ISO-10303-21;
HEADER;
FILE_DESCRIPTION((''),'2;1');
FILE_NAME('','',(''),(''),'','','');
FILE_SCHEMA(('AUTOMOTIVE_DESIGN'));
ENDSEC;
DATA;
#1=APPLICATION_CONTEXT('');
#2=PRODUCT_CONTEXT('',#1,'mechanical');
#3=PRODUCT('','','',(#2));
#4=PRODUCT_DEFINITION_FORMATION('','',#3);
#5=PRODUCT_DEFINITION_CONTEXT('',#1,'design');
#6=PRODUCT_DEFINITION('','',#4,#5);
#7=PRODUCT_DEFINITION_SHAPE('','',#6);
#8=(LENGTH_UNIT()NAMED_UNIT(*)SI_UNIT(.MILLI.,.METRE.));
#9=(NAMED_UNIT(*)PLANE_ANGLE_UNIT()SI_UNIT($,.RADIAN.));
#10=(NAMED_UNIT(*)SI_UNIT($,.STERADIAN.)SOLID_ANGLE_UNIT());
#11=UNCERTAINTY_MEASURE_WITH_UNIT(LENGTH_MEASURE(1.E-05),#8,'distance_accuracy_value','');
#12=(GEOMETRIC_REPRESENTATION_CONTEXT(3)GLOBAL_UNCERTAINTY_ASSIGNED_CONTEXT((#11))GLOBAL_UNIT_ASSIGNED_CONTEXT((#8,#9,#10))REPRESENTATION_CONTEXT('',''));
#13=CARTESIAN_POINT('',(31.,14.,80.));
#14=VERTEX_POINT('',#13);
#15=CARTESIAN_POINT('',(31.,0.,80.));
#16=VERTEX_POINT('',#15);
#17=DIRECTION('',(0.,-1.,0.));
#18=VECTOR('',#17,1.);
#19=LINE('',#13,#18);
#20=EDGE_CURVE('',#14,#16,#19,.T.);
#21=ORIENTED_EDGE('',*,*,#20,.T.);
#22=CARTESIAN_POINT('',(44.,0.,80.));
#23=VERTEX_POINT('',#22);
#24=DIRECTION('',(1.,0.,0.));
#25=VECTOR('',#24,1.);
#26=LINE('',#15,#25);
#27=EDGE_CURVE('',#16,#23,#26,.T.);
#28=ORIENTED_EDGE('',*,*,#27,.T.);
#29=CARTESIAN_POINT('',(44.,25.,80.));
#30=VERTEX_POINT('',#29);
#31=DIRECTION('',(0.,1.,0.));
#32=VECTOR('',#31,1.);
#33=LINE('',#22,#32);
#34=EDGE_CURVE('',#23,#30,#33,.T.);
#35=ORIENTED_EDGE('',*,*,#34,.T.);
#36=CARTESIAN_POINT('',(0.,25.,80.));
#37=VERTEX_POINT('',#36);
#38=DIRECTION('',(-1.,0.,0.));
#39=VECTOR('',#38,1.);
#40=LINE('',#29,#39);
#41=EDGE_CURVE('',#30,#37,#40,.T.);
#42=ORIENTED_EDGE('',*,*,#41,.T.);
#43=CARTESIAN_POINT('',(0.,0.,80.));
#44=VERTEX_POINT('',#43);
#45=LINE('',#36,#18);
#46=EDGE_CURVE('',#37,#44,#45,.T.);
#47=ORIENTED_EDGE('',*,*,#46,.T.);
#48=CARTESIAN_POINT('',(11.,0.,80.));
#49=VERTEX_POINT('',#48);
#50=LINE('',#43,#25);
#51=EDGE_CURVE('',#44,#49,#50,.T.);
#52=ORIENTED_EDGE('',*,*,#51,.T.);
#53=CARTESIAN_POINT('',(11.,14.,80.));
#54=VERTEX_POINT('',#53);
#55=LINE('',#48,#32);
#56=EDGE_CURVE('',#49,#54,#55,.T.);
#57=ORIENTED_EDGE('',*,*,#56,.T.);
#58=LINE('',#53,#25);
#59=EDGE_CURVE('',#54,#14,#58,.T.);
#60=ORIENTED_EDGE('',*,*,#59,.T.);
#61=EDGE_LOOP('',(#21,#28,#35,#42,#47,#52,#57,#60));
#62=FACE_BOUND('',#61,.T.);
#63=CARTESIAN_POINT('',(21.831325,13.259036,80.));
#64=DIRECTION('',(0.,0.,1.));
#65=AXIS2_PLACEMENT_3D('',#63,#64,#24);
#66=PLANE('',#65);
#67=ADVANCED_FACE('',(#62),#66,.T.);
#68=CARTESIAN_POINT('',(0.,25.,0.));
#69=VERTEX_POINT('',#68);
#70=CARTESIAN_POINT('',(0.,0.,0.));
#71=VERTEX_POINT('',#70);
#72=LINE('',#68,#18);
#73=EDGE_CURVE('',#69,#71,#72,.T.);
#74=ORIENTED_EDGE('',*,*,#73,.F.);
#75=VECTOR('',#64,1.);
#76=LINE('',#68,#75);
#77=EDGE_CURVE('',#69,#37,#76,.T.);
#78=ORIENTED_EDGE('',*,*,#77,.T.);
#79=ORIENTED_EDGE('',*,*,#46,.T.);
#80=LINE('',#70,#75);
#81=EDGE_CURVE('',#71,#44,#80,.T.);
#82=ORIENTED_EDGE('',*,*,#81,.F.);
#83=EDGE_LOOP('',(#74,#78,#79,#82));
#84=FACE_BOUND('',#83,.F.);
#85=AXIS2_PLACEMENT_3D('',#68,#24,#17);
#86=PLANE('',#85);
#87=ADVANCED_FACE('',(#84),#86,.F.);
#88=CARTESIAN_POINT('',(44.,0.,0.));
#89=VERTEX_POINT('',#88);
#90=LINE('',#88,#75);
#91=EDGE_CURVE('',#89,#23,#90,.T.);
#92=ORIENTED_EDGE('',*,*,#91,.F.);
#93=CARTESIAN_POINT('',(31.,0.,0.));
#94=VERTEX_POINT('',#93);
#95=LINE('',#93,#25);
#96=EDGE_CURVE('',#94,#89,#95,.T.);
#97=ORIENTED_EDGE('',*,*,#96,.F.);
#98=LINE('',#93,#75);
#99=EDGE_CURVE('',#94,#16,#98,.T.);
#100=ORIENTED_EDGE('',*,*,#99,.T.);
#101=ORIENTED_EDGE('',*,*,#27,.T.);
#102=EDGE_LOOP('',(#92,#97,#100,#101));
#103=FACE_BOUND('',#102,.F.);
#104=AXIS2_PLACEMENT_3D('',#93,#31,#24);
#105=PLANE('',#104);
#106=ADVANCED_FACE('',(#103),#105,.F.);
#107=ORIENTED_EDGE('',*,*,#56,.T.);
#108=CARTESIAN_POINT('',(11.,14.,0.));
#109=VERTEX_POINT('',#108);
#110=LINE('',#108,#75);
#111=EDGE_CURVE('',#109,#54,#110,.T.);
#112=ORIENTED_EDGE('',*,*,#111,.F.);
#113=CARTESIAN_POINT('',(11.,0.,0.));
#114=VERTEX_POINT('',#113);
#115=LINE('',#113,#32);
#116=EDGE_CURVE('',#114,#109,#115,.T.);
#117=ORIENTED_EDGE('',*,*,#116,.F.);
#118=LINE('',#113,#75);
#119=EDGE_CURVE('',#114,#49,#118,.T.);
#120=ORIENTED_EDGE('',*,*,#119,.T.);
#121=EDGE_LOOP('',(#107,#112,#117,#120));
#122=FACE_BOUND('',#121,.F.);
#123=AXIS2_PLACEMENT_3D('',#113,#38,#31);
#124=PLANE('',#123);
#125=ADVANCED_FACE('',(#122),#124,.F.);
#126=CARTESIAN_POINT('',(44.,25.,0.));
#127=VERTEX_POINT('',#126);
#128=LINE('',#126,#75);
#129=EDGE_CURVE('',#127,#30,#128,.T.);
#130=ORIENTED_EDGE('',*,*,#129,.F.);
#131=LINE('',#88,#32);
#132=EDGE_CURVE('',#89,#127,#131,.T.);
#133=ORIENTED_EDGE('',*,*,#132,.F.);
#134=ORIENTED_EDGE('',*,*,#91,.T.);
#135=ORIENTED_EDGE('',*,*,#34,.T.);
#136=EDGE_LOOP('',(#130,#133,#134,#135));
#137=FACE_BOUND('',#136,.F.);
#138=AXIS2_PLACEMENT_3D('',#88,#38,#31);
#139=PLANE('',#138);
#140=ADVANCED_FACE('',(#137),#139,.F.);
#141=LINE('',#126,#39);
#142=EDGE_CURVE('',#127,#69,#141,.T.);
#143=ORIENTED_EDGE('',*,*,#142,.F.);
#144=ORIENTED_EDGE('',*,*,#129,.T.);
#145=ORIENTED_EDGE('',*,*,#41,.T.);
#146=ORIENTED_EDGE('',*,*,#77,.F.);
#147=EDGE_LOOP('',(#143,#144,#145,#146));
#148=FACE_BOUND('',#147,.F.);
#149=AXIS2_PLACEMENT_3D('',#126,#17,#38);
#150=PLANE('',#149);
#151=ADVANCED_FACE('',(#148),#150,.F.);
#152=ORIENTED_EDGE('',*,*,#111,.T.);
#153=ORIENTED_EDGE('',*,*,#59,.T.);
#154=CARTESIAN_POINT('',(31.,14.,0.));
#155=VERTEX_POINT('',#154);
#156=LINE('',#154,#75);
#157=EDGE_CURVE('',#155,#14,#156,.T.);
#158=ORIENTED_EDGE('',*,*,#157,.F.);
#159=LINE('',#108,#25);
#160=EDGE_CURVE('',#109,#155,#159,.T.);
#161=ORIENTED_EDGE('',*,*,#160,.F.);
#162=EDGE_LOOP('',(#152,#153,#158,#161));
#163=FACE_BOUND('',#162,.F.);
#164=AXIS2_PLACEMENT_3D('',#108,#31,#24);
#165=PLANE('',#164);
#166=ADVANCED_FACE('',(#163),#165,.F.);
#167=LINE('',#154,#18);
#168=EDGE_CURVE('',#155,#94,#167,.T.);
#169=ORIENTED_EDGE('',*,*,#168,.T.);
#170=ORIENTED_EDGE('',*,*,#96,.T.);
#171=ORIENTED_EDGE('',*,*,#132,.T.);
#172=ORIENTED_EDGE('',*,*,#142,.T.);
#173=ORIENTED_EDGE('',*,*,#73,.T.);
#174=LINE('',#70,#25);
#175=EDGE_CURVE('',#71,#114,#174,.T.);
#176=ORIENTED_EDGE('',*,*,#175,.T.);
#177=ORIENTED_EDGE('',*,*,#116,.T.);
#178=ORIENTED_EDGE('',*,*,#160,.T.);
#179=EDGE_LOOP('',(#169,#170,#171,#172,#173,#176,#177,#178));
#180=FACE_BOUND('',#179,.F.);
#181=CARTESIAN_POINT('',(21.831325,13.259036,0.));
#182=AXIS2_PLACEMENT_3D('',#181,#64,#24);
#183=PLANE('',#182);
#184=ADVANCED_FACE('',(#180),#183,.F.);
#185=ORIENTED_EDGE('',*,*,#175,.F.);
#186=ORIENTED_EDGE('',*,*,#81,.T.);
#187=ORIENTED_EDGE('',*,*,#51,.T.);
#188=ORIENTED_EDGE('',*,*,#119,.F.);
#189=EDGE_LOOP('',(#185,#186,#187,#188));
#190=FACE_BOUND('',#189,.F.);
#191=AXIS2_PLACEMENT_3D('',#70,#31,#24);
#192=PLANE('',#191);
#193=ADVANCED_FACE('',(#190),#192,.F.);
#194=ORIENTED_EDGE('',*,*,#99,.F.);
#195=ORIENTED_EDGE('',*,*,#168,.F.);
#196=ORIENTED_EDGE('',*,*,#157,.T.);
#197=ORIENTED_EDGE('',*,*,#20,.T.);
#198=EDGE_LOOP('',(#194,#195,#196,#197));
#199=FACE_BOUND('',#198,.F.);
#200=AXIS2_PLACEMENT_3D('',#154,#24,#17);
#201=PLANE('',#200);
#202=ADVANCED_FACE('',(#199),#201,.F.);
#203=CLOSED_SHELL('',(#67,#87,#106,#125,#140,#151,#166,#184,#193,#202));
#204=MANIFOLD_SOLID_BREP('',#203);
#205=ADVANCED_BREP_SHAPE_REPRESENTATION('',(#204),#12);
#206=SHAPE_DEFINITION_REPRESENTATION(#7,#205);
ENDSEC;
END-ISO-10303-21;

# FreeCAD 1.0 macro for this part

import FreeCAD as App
import Part
import Sketcher
from FreeCAD import Vector
Q = App.Units.Quantity

doc = App.newDocument("Part")
body = doc.addObject("PartDesign::Body", "Body")

# Sketch on XY plane
sketch1 = body.newObject("Sketcher::SketchObject", "Sketch")
sketch1.AttachmentSupport = (doc.getObject("XY_Plane"), [""])
sketch1.MapMode = "FlatFace"
sketch1.addGeometry(Part.LineSegment(Vector(0, 0, 0), Vector(11, 0, 0)), False)
sketch1.addGeometry(Part.LineSegment(Vector(11, 0, 0), Vector(11, 14, 0)), False)
sketch1.addGeometry(Part.LineSegment(Vector(11, 14, 0), Vector(31, 14, 0)), False)
sketch1.addGeometry(Part.LineSegment(Vector(31, 14, 0), Vector(31, 0, 0)), False)
sketch1.addGeometry(Part.LineSegment(Vector(31, 0, 0), Vector(44, 0, 0)), False)
sketch1.addGeometry(Part.LineSegment(Vector(44, 0, 0), Vector(44, 25, 0)), False)
sketch1.addGeometry(Part.LineSegment(Vector(44, 25, 0), Vector(0, 25, 0)), False)
sketch1.addGeometry(Part.LineSegment(Vector(0, 25, 0), Vector(0, 0, 0)), False)
sketch1.addConstraint(Sketcher.Constraint("Coincident", 0, 2, 1, 1))
sketch1.addConstraint(Sketcher.Constraint("Coincident", 1, 2, 2, 1))
sketch1.addConstraint(Sketcher.Constraint("Coincident", 2, 2, 3, 1))
sketch1.addConstraint(Sketcher.Constraint("Coincident", 3, 2, 4, 1))
sketch1.addConstraint(Sketcher.Constraint("Coincident", 4, 2, 5, 1))
sketch1.addConstraint(Sketcher.Constraint("Coincident", 5, 2, 6, 1))
sketch1.addConstraint(Sketcher.Constraint("Coincident", 6, 2, 7, 1))
sketch1.addConstraint(Sketcher.Constraint("Coincident", 7, 2, 0, 1))
sketch1.addConstraint(Sketcher.Constraint("Horizontal", 0))
sketch1.addConstraint(Sketcher.Constraint("Vertical", 1))
sketch1.addConstraint(Sketcher.Constraint("Horizontal", 2))
sketch1.addConstraint(Sketcher.Constraint("Vertical", 3))
sketch1.addConstraint(Sketcher.Constraint("Horizontal", 4))
sketch1.addConstraint(Sketcher.Constraint("Vertical", 5))
sketch1.addConstraint(Sketcher.Constraint("Horizontal", 6))
sketch1.addConstraint(Sketcher.Constraint("Vertical", 7))
sketch1.addConstraint(Sketcher.Constraint("Coincident", 7, 2, -1, 1))
sketch1.addConstraint(Sketcher.Constraint("PointOnObject", 3, 2, -1))
sketch1.addConstraint(Sketcher.Constraint("DistanceX", 0, 1, 0, 2, Q("11 mm")))
sketch1.addConstraint(Sketcher.Constraint("DistanceX", 2, 1, 2, 2, Q("20 mm")))
sketch1.addConstraint(Sketcher.Constraint("DistanceX", 4, 1, 4, 2, Q("13 mm")))
sketch1.addConstraint(Sketcher.Constraint("DistanceY", 1, 1, 1, 2, Q("14 mm")))
sketch1.addConstraint(Sketcher.Constraint("DistanceY", 5, 1, 5, 2, Q("25 mm")))
pad1 = body.newObject("PartDesign::Pad", "Pad")
pad1.Profile = sketch1
pad1.Length = 80

doc.recompute()
